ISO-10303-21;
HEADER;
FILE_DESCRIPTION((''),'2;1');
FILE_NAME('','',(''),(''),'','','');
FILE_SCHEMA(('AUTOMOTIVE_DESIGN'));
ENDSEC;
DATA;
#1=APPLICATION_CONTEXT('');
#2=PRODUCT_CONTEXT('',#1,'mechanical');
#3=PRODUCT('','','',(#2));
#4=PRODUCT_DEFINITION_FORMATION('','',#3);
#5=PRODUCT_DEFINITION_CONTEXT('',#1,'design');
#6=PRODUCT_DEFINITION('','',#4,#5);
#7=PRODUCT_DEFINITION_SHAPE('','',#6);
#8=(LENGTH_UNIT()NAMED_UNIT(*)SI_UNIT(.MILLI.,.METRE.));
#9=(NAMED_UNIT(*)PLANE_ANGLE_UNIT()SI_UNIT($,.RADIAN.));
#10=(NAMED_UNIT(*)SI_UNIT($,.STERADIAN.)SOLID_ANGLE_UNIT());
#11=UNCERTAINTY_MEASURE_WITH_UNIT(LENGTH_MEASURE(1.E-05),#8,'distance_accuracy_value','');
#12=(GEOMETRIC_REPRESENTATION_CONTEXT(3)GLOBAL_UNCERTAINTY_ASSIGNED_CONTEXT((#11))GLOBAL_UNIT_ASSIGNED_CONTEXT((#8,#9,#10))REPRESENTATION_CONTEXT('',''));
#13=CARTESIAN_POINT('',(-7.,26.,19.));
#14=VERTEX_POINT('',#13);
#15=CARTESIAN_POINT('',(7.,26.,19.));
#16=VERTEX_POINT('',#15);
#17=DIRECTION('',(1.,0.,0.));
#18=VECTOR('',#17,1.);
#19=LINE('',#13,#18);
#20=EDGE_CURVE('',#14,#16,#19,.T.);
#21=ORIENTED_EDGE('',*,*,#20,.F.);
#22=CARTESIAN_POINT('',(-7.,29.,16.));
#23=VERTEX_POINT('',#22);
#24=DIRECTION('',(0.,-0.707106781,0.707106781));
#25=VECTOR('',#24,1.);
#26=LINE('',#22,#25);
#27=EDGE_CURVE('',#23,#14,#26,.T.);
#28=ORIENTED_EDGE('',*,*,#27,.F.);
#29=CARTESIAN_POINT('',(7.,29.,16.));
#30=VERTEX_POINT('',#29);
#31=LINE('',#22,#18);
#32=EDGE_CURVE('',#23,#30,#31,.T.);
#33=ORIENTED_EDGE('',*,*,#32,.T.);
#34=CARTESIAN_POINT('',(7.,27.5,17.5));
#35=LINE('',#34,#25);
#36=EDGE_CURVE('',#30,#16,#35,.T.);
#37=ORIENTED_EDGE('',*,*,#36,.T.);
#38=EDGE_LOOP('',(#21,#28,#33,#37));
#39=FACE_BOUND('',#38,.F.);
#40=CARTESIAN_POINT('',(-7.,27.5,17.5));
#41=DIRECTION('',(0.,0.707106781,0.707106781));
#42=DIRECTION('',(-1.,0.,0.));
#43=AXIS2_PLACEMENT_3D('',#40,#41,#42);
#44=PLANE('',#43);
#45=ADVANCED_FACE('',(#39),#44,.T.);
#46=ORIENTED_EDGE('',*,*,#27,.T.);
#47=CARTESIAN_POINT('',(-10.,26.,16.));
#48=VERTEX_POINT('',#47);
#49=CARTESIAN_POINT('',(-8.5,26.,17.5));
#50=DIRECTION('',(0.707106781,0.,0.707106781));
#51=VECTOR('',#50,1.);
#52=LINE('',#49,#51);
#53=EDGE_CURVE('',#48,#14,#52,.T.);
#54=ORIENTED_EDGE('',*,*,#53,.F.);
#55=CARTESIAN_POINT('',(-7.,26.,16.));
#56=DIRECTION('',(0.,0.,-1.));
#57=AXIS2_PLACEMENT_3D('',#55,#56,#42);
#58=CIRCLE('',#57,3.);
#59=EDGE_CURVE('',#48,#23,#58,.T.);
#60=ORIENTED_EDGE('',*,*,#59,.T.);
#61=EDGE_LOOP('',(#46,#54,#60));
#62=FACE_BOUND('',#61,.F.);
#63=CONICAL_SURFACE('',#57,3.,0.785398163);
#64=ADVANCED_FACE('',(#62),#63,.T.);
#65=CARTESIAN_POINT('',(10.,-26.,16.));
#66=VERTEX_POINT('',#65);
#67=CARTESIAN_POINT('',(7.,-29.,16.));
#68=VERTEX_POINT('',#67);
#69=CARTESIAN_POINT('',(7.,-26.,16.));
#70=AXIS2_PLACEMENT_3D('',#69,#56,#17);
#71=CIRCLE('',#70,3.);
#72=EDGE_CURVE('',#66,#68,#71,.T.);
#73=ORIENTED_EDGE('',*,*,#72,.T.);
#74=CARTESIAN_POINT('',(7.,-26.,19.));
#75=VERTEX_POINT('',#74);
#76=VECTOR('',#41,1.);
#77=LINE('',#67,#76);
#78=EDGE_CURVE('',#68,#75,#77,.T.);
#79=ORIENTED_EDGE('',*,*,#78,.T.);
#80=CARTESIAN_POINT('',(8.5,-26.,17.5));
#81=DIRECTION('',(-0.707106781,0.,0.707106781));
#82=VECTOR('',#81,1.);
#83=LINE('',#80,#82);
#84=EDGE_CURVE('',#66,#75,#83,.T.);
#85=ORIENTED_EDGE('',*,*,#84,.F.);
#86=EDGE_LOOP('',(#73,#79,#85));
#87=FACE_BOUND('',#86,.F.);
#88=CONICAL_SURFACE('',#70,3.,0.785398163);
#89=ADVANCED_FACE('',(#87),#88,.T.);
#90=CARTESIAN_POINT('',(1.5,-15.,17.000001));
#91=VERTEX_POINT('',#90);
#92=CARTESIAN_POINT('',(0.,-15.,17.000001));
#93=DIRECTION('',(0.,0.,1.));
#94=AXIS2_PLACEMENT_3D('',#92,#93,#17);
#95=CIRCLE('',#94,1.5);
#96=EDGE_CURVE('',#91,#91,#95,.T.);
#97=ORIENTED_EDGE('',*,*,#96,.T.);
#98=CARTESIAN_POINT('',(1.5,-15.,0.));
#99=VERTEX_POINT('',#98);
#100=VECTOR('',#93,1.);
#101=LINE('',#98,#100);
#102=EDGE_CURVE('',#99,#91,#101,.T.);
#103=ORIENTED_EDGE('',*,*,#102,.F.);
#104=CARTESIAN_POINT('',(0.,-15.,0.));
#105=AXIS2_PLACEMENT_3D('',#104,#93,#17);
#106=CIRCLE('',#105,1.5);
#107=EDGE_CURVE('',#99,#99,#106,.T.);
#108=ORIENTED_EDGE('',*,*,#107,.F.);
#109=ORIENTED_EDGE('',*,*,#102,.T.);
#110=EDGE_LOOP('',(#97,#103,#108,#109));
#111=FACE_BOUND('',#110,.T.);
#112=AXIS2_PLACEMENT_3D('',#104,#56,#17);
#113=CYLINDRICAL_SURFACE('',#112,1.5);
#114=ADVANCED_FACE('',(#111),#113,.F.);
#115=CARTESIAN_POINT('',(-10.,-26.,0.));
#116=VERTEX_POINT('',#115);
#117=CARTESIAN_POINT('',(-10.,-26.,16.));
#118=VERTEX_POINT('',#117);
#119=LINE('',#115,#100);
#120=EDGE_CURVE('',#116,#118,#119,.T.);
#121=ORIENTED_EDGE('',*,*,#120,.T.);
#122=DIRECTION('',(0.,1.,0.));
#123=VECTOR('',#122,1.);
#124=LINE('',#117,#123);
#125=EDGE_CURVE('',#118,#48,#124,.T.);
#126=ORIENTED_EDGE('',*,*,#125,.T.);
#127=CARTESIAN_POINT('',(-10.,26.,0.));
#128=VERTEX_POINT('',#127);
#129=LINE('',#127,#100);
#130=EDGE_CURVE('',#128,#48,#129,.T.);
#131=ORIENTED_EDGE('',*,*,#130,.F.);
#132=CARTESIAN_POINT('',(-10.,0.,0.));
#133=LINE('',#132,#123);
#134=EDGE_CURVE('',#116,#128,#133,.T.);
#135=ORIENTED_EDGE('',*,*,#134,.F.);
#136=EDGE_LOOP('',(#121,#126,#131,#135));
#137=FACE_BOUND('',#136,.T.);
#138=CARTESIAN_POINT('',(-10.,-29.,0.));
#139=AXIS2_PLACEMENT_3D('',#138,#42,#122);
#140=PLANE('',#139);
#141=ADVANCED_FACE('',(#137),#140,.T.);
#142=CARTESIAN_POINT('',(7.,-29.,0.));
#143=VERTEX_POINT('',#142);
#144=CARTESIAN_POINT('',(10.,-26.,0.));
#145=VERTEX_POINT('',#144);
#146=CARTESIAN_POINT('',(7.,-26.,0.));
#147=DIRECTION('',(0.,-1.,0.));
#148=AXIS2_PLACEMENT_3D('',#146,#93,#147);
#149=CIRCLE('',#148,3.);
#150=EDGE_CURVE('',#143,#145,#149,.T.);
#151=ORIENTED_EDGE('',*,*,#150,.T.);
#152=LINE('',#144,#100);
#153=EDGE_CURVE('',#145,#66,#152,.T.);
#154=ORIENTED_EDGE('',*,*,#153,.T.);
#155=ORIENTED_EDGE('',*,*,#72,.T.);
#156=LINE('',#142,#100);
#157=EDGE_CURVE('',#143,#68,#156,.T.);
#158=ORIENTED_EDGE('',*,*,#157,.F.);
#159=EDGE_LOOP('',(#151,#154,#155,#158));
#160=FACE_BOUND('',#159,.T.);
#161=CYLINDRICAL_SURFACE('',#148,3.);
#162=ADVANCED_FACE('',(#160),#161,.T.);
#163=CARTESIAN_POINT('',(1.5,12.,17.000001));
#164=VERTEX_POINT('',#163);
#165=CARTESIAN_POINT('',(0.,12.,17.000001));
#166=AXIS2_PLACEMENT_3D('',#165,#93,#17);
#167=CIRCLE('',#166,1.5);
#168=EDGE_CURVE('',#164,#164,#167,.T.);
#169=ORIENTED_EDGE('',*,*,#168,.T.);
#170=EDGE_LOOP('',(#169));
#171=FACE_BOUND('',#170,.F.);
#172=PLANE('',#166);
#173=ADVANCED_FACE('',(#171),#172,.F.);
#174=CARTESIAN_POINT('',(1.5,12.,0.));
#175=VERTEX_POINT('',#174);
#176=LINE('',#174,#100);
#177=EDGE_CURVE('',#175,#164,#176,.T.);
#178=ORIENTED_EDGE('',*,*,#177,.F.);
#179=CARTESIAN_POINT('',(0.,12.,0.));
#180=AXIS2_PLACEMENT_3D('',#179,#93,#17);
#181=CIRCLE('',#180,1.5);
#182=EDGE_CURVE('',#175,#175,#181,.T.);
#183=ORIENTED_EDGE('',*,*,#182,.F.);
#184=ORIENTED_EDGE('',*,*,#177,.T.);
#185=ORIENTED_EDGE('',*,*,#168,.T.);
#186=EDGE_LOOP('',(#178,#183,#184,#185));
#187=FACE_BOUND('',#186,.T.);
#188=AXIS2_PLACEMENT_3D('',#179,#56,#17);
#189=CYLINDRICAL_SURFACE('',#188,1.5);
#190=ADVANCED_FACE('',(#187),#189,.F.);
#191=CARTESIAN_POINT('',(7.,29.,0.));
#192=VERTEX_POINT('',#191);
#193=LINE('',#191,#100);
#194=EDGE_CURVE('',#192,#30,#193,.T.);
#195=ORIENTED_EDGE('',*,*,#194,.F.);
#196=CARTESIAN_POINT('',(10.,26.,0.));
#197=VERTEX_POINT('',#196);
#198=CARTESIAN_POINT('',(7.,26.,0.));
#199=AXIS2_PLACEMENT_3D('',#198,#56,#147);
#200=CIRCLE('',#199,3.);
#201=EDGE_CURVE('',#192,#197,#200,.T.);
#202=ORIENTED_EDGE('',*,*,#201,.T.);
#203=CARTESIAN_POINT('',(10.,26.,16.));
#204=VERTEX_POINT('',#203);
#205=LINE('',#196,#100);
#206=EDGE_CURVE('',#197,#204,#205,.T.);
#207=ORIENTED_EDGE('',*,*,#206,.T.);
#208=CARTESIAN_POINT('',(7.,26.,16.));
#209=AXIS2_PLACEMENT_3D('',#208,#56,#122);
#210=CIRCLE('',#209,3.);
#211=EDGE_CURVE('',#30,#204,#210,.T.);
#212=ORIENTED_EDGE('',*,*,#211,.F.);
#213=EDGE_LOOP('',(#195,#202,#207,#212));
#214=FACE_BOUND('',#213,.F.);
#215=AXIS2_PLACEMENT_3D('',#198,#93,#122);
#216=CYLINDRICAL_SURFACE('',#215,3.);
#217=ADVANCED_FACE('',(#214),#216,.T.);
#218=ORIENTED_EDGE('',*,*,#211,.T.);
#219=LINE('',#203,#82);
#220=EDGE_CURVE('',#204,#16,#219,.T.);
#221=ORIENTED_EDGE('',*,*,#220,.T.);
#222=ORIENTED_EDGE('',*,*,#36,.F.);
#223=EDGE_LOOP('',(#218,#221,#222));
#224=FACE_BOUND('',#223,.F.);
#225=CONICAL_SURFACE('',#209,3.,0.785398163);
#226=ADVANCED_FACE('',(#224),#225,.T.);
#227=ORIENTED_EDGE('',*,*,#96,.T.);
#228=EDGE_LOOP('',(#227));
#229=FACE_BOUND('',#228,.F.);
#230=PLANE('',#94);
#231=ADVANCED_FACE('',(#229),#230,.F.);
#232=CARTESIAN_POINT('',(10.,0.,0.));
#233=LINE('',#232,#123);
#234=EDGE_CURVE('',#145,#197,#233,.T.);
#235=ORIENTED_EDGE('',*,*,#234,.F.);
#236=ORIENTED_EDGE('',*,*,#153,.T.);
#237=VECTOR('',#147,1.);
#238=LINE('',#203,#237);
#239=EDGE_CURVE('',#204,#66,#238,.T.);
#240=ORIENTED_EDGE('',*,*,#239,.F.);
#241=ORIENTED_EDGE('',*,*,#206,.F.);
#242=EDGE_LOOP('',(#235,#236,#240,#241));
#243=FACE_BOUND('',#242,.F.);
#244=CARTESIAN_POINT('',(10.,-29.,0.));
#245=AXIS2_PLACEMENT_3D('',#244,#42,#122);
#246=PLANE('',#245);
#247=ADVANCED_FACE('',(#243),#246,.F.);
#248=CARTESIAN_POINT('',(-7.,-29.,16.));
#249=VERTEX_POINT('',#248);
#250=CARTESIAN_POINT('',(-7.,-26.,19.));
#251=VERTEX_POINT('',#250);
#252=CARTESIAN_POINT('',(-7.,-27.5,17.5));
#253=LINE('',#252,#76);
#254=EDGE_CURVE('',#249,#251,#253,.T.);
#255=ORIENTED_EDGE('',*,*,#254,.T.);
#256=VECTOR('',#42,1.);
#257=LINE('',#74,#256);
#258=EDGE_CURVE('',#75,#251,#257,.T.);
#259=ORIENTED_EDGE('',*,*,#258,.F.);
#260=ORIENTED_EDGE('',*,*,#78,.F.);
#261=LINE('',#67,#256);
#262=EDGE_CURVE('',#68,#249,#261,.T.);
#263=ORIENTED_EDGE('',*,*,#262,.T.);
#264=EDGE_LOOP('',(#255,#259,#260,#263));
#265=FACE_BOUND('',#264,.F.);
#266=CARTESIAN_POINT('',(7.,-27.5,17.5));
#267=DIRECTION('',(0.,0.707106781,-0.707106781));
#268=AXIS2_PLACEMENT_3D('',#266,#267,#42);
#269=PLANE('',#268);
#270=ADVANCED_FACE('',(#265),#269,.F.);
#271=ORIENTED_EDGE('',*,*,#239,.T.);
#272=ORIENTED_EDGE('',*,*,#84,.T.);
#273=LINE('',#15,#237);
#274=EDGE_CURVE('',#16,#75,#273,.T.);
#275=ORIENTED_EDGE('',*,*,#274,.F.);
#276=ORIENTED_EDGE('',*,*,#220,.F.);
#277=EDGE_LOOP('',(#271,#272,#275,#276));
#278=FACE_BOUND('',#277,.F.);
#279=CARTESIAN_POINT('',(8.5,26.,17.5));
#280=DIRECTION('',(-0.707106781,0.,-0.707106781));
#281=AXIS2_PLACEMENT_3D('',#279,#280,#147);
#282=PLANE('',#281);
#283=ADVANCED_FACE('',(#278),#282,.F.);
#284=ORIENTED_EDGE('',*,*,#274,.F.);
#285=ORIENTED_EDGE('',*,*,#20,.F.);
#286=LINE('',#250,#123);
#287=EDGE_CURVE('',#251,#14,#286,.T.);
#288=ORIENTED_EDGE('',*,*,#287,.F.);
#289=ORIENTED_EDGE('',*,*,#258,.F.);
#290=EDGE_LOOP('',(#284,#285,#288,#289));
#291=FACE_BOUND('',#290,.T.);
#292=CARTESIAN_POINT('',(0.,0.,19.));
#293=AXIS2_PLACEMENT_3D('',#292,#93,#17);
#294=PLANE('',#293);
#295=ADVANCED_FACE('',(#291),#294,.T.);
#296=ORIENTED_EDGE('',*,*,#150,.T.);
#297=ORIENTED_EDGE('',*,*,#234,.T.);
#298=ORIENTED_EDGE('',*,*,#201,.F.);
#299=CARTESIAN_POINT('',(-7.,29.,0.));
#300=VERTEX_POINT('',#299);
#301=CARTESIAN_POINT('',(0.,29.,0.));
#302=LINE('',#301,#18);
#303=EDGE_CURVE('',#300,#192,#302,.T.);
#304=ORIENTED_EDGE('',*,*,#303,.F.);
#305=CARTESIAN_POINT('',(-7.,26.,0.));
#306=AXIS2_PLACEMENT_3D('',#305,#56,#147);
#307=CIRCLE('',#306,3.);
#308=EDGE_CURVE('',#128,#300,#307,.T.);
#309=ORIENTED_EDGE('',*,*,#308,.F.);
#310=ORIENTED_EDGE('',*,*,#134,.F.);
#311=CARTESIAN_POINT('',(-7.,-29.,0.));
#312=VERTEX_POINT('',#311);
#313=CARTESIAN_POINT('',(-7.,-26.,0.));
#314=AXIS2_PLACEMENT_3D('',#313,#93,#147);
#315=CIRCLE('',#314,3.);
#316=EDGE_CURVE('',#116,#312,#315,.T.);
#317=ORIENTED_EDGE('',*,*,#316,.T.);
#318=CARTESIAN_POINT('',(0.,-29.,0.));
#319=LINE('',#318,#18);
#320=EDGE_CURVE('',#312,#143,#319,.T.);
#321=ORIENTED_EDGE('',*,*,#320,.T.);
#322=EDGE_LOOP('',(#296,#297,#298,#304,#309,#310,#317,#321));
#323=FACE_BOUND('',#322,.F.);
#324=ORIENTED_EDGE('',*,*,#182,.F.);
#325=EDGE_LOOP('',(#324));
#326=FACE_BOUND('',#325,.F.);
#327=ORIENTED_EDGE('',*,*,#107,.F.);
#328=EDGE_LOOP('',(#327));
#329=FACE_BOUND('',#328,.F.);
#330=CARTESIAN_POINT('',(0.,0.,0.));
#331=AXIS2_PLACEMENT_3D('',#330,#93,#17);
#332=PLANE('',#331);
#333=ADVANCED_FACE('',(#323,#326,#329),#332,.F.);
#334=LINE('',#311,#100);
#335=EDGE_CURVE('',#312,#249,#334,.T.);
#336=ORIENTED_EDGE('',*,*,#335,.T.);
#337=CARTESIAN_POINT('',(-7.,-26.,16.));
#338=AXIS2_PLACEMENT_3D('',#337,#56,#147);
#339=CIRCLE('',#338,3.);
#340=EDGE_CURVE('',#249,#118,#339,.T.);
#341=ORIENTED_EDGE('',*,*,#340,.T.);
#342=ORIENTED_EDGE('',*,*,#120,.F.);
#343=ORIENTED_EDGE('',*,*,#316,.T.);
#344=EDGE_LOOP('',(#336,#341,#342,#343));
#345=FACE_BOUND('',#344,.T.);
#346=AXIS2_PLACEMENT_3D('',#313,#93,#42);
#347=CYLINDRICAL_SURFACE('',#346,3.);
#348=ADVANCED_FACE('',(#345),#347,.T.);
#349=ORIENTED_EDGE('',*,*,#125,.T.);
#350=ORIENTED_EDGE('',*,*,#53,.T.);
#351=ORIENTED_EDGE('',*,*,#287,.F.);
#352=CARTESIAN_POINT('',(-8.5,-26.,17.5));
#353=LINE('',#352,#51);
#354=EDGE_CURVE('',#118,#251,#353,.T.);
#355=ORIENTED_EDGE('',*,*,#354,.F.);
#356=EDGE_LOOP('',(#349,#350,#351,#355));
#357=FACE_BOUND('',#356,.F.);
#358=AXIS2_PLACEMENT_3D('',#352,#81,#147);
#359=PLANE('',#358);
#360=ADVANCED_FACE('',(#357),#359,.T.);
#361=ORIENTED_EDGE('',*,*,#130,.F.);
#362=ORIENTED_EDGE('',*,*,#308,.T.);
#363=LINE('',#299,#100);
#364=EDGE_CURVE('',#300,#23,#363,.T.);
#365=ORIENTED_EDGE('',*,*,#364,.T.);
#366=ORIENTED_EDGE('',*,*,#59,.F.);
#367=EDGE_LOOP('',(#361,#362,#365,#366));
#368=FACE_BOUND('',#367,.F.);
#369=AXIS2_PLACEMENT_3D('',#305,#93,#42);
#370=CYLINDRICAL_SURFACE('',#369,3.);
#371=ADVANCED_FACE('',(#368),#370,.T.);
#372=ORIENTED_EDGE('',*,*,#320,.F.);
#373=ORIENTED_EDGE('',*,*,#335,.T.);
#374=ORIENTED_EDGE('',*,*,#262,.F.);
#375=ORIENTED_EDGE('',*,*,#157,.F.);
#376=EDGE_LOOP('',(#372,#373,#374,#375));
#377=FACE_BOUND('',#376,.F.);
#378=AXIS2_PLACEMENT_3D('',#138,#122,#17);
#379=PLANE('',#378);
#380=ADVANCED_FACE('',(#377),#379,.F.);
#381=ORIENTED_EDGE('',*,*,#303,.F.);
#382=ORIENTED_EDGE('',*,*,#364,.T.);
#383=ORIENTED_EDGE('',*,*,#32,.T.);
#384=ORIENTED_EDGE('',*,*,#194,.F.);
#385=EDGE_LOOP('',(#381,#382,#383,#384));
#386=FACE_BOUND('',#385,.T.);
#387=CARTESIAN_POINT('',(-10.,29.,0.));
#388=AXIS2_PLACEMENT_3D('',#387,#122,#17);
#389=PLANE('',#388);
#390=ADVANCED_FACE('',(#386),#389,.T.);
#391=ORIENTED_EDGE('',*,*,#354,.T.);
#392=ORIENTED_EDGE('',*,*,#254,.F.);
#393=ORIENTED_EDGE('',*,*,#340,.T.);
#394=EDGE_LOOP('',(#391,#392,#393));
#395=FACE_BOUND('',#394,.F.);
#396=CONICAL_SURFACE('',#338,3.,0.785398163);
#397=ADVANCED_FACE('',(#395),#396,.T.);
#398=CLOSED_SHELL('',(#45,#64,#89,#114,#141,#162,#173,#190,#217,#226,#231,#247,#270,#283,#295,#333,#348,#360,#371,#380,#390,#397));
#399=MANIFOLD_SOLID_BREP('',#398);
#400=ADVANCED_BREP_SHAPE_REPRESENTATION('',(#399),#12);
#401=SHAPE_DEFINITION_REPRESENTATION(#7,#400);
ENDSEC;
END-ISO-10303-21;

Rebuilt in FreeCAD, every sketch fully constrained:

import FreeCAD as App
import Part
import Sketcher
from FreeCAD import Vector
Q = App.Units.Quantity


def edges_at(feature, points):
    """Names of the edges that pass closest to the given points."""
    edges = feature.Shape.Edges
    near = lambda p: min(range(len(edges)), key=lambda i: edges[i].distToShape(Part.Vertex(*p))[0])
    return sorted({f"Edge{near(p) + 1}" for p in points})


def add_polygon(sketch, points):
    """Adds a closed chain of lines whose ends are joined by coincident constraints."""
    first, n = sketch.GeometryCount, len(points)
    for a, b in zip(points, points[1:] + points[:1]):
        sketch.addGeometry(Part.LineSegment(App.Vector(*a, 0), App.Vector(*b, 0)), False)
    for i in range(n):
        sketch.addConstraint(Sketcher.Constraint("Coincident", first + i, 2, first + (i + 1) % n, 1))

doc = App.newDocument("Part")
body = doc.addObject("PartDesign::Body", "Body")

# Sketch on XY plane
sketch1 = body.newObject("Sketcher::SketchObject", "Sketch")
sketch1.AttachmentSupport = (doc.getObject("XY_Plane"), [""])
sketch1.MapMode = "FlatFace"
add_polygon(sketch1, [(-10, 29), (-10, -29), (10, -29), (10, 29)])  # lines 0-3
sketch1.addConstraint(Sketcher.Constraint("Vertical", 0))
sketch1.addConstraint(Sketcher.Constraint("Horizontal", 1))
sketch1.addConstraint(Sketcher.Constraint("Vertical", 2))
sketch1.addConstraint(Sketcher.Constraint("Horizontal", 3))
sketch1.addConstraint(Sketcher.Constraint("Symmetric", 0, 2, 2, 2, -1, 1))
sketch1.addConstraint(Sketcher.Constraint("DistanceX", 1, 1, 1, 2, Q("20 mm")))
sketch1.addConstraint(Sketcher.Constraint("DistanceY", 0, 2, 0, 1, Q("58 mm")))
pad1 = body.newObject("PartDesign::Pad", "Pad")
pad1.Profile = sketch1
pad1.Length = 19

# Sketch on XY plane
sketch2 = body.newObject("Sketcher::SketchObject", "Sketch001")
sketch2.AttachmentSupport = (doc.getObject("XY_Plane"), [""])
sketch2.MapMode = "FlatFace"
sketch2.addGeometry(Part.Circle(Vector(0, 12, 0), Vector(0, 0, 1), 1.5), False)
sketch2.addGeometry(Part.Circle(Vector(0, -15, 0), Vector(0, 0, 1), 1.5), False)
sketch2.addConstraint(Sketcher.Constraint("Equal", 0, 1))
sketch2.addConstraint(Sketcher.Constraint("PointOnObject", 0, 3, -2))
sketch2.addConstraint(Sketcher.Constraint("PointOnObject", 1, 3, -2))
sketch2.addConstraint(Sketcher.Constraint("Diameter", 0, Q("3 mm")))
sketch2.addConstraint(Sketcher.Constraint("DistanceY", -1, 1, 0, 3, Q("12 mm")))
sketch2.addConstraint(Sketcher.Constraint("DistanceY", 1, 3, -1, 1, Q("15 mm")))
pocket1 = body.newObject("PartDesign::Pocket", "Pocket")
pocket1.Profile = sketch2
pocket1.Length = 17.000001
pocket1.Reversed = True
doc.recompute()

fillet = body.newObject("PartDesign::Fillet", "Fillet")
fillet.Base = (pocket1, edges_at(pocket1, [
    (-10, 29, 9.5),
    (10, 29, 9.5),
    (-10, -29, 9.5),
    (10, -29, 9.5),
]))
fillet.Radius = 3
doc.recompute()

chamfer = body.newObject("PartDesign::Chamfer", "Chamfer")
chamfer.Base = (fillet, edges_at(fillet, [(-10, 0, 19)]))
chamfer.Size = 3

doc.recompute()
